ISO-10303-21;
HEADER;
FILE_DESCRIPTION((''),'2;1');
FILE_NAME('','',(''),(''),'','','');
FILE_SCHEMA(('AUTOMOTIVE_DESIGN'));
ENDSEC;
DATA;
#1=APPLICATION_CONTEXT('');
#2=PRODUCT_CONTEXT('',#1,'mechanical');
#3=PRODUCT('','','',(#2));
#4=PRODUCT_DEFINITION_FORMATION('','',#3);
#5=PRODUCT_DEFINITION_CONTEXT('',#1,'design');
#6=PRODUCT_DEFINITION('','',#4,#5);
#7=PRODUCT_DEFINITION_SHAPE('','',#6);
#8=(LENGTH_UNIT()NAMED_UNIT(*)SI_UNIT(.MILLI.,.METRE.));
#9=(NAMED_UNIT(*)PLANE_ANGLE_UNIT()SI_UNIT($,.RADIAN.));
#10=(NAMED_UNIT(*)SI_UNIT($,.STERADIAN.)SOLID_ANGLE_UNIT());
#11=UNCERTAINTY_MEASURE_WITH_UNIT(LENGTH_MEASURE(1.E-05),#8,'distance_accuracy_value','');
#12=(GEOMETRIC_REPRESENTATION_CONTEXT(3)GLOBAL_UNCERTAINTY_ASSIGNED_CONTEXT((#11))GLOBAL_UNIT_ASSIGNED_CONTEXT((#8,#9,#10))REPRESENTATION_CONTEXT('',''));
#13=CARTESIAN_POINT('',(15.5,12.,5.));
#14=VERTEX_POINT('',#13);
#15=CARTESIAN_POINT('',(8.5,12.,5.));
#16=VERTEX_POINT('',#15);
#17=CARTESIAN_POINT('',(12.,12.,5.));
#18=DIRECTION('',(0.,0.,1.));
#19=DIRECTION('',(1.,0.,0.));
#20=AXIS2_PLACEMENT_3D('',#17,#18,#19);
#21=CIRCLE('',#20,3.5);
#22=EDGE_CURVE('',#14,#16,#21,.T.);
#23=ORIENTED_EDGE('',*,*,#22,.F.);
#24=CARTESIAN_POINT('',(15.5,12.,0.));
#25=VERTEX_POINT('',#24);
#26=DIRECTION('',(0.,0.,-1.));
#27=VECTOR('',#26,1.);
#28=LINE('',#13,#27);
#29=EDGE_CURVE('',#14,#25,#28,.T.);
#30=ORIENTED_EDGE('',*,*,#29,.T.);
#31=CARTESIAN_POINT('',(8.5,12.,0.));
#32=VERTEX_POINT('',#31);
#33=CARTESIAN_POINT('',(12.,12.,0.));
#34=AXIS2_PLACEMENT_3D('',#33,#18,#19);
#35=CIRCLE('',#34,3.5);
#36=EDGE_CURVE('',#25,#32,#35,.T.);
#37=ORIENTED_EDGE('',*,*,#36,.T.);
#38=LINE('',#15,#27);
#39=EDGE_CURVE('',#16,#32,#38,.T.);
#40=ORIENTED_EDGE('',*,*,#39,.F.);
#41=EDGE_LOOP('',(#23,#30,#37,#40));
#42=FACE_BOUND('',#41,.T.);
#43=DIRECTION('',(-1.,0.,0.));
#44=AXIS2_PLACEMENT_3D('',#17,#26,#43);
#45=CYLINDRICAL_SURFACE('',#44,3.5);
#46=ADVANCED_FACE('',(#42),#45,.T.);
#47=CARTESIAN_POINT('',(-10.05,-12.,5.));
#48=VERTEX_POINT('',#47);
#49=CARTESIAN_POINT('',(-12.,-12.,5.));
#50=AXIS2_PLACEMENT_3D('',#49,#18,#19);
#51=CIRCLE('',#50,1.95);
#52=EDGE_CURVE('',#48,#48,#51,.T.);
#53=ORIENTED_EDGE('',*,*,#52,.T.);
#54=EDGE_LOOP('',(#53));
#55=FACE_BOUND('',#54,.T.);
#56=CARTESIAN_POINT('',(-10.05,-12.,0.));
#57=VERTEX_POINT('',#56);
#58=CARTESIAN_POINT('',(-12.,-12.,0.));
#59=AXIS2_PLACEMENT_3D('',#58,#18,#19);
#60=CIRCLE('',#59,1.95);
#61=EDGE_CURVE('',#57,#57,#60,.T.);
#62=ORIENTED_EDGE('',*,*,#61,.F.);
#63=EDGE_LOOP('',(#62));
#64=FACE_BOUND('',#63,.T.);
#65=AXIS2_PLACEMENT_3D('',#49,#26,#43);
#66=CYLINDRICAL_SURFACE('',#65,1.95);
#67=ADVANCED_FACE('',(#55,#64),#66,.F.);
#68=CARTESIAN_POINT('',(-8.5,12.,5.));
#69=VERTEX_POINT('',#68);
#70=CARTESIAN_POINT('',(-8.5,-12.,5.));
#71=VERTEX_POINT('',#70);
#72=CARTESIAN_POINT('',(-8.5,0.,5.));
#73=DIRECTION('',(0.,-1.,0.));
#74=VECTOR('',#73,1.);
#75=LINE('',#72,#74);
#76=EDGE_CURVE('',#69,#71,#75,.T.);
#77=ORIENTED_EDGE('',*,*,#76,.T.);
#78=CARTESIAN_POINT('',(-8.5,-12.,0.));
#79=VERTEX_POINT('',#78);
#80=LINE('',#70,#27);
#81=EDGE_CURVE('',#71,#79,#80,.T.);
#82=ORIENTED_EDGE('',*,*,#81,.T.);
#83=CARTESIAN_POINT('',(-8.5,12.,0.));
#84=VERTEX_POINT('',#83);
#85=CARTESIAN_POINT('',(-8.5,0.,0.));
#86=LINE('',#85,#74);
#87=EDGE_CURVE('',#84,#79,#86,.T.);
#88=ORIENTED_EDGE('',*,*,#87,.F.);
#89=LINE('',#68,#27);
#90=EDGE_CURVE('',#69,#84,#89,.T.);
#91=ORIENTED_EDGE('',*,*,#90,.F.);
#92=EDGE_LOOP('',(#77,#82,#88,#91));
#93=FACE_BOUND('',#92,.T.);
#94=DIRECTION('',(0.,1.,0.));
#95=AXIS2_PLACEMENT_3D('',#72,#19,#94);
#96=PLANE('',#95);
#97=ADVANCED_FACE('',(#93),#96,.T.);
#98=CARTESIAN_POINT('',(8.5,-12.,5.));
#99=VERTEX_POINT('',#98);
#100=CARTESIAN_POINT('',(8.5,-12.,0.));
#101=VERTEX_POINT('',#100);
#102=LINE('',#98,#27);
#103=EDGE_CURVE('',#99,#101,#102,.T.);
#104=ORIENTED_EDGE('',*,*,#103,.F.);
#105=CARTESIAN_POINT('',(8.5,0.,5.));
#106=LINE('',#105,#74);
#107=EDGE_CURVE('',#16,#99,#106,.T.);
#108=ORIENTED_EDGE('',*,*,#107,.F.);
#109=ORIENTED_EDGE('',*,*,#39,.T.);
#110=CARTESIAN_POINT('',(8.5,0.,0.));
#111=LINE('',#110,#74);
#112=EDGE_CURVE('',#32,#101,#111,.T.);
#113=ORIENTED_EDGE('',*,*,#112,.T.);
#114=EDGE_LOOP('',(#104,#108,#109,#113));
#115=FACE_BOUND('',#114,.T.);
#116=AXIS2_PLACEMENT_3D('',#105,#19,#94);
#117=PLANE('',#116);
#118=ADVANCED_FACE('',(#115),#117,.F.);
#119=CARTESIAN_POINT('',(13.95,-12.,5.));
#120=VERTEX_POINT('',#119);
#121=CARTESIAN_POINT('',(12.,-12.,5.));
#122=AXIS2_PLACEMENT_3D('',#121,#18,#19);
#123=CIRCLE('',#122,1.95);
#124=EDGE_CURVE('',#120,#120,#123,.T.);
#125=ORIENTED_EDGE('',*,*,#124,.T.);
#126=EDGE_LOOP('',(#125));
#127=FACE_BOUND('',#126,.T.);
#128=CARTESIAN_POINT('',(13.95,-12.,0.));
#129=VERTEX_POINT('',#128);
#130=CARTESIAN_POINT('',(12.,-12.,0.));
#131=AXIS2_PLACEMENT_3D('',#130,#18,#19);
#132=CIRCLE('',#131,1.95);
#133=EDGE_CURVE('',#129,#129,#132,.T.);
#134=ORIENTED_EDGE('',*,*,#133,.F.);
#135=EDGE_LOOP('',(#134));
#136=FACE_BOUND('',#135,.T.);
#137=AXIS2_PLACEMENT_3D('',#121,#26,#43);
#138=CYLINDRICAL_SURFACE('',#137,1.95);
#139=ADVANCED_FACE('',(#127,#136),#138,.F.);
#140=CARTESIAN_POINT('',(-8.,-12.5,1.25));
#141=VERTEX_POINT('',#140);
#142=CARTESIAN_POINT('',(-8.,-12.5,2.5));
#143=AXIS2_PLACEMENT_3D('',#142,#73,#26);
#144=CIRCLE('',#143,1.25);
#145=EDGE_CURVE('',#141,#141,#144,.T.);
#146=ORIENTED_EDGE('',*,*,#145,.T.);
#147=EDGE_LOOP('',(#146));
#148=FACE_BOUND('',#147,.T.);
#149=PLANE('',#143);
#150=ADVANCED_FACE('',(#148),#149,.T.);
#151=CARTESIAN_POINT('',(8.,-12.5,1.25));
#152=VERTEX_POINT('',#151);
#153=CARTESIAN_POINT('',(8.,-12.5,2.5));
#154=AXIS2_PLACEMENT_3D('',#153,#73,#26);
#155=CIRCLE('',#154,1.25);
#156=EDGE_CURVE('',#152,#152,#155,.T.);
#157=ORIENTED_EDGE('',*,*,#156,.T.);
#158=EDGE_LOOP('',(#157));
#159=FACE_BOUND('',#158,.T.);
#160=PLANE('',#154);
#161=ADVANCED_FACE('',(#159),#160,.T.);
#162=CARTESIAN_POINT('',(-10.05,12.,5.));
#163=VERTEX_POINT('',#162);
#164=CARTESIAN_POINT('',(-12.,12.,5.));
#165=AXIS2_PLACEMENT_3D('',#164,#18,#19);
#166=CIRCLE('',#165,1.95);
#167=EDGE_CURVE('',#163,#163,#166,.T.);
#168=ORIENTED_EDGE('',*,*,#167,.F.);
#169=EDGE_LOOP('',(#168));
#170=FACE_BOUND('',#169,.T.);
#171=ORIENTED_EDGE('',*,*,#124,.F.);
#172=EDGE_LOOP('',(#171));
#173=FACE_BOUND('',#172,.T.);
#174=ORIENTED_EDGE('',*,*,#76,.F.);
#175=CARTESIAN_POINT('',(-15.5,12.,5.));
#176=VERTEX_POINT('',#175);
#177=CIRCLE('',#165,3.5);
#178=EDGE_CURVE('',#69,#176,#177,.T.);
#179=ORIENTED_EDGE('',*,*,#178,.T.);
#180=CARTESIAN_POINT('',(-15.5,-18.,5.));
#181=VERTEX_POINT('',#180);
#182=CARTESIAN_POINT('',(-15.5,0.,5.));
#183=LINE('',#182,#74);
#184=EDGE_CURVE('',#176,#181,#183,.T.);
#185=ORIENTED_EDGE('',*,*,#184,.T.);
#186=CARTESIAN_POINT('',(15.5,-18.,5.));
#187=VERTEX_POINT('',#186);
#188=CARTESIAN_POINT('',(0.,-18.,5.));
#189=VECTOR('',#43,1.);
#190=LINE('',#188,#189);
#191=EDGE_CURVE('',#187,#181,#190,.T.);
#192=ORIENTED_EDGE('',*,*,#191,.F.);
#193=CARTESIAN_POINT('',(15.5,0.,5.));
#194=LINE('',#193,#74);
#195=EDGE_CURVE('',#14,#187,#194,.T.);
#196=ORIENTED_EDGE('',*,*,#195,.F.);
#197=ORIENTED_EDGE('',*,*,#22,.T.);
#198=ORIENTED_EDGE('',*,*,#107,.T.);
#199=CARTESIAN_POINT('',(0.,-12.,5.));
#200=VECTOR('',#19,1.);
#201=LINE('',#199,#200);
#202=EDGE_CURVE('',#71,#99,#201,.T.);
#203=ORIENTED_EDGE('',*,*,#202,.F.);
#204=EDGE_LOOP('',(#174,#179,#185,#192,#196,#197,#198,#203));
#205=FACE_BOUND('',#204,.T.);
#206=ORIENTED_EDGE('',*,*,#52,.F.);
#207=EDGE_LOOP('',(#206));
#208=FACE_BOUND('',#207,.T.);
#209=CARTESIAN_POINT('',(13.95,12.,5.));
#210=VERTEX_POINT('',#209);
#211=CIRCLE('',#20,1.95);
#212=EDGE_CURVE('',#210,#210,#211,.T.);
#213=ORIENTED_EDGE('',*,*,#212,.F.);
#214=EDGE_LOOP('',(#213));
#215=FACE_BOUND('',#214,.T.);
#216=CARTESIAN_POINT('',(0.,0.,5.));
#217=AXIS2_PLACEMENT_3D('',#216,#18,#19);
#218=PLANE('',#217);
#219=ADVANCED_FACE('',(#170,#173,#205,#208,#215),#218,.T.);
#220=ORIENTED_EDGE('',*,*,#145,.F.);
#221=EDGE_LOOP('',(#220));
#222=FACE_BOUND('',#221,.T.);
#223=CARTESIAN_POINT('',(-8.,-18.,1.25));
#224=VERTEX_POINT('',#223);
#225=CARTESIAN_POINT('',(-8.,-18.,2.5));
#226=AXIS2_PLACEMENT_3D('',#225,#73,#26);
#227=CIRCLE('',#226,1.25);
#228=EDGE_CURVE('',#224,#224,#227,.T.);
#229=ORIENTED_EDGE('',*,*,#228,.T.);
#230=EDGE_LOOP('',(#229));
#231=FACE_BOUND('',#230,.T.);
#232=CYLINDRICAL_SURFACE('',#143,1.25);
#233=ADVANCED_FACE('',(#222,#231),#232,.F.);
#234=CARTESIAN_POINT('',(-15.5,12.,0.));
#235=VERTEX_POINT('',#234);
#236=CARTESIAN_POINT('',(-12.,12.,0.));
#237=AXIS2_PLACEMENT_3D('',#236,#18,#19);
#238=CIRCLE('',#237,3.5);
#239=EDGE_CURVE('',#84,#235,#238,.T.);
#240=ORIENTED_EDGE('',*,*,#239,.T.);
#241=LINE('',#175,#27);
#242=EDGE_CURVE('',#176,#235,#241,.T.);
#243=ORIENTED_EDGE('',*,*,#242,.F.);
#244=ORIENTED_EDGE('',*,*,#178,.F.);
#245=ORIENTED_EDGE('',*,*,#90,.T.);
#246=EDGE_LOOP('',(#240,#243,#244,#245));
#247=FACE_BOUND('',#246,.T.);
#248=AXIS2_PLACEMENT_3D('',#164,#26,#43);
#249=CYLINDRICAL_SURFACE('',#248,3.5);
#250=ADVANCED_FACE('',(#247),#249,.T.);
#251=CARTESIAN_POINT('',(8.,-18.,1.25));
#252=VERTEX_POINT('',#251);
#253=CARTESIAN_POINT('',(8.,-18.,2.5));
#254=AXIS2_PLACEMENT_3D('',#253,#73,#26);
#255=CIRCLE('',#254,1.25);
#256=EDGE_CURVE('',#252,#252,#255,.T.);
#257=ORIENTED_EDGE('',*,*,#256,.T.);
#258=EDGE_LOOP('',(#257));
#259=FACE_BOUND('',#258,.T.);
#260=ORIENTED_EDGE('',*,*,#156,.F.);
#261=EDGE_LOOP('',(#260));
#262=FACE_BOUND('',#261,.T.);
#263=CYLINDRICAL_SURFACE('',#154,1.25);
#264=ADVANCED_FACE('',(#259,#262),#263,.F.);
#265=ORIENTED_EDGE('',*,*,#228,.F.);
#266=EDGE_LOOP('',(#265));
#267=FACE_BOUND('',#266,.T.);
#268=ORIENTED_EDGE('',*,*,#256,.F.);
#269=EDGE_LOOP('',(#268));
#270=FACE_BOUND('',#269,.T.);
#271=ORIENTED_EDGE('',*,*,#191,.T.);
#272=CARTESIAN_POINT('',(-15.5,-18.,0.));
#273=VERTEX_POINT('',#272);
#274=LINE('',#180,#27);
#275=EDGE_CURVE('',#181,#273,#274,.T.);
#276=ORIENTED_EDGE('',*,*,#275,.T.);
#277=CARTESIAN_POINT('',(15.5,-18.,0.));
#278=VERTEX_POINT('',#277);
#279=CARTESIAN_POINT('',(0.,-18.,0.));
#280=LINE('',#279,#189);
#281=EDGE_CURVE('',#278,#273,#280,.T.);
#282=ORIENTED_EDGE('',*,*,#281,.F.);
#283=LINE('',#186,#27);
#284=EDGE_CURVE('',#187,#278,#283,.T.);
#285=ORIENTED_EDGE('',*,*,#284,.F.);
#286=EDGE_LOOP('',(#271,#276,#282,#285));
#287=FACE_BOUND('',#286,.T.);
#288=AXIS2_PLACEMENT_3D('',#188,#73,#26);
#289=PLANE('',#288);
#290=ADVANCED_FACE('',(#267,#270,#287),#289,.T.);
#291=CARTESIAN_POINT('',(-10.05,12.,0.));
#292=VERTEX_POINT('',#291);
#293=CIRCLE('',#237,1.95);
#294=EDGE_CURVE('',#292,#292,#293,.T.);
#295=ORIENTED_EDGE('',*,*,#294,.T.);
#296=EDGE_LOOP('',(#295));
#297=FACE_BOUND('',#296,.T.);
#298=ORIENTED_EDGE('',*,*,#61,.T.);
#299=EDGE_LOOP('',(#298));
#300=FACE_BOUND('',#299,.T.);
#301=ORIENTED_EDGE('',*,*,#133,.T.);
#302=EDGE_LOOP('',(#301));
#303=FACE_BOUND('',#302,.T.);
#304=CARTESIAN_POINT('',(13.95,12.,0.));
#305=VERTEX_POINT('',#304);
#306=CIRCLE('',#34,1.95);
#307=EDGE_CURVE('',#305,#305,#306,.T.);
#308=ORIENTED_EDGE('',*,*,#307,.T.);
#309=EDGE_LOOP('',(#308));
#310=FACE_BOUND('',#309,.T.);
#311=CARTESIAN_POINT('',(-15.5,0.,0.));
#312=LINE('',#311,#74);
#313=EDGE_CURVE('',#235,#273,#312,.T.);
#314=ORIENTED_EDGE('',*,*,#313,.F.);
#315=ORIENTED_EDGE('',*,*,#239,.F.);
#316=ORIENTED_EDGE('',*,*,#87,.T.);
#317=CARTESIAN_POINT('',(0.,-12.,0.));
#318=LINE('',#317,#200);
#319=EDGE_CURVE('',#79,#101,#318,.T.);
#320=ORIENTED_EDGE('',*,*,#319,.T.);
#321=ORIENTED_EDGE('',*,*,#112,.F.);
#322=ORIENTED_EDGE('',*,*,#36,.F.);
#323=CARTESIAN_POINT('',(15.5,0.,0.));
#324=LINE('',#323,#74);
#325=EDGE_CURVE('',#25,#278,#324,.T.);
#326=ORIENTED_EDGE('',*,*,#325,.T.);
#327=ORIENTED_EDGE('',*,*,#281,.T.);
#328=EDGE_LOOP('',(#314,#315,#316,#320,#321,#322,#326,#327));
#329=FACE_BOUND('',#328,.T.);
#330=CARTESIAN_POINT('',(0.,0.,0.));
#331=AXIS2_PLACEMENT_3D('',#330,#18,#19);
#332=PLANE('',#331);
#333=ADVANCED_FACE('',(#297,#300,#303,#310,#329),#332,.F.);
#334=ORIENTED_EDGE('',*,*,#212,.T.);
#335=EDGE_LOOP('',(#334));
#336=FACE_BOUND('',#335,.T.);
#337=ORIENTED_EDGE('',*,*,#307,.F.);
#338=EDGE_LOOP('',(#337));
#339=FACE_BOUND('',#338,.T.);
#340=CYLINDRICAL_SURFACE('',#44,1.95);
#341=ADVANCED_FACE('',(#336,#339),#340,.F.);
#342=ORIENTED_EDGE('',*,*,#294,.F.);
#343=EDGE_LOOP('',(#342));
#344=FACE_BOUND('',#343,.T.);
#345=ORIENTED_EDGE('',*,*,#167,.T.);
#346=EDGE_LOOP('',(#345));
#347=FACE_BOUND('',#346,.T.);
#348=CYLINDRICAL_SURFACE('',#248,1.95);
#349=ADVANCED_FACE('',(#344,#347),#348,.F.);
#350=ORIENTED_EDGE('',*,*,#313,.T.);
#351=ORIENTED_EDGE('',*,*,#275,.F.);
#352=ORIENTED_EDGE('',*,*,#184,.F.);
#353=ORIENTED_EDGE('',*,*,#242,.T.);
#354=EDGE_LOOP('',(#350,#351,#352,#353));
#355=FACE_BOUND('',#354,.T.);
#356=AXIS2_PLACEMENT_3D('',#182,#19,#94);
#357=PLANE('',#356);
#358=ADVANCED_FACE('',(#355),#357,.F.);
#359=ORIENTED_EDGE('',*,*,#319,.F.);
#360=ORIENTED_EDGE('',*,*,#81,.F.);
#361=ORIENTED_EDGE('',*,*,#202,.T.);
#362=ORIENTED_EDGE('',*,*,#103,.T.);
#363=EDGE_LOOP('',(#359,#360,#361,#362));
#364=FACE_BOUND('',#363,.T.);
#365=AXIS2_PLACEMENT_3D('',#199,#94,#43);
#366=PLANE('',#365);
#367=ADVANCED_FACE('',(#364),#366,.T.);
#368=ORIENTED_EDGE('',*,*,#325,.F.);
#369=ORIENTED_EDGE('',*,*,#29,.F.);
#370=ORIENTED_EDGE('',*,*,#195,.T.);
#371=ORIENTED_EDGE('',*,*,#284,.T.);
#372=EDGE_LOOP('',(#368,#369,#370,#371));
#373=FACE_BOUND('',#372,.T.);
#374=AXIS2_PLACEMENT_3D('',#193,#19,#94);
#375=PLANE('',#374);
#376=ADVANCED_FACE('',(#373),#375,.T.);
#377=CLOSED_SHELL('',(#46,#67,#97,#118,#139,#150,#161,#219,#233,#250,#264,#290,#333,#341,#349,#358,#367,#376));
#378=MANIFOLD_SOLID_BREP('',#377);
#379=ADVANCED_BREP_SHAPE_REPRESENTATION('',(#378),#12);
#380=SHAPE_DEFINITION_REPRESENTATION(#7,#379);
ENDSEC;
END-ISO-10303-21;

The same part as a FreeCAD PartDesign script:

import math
import FreeCAD as App
import Part
import Sketcher

V = App.Vector
Q = App.Units.Quantity

doc = App.newDocument("Part")
body = doc.addObject("PartDesign::Body", "Body")

sketch1 = doc.addObject("Sketcher::SketchObject", "Sketch")
body.addObject(sketch1)
sketch1.AttachmentSupport = (doc.XY_Plane, [""])
sketch1.MapMode = "FlatFace"
sketch1.addGeometry(Part.ArcOfCircle(Part.Circle(V(-12, 12, 0), V(0, 0, 1), 3.5), math.radians(0), math.radians(180)), False)
sketch1.addGeometry(Part.LineSegment(V(-15.5, 12, 0), V(-15.5, -18, 0)), False)
sketch1.addGeometry(Part.LineSegment(V(-15.5, -18, 0), V(15.5, -18, 0)), False)
sketch1.addGeometry(Part.LineSegment(V(15.5, -18, 0), V(15.5, 12, 0)), False)
sketch1.addGeometry(Part.ArcOfCircle(Part.Circle(V(12, 12, 0), V(0, 0, 1), 3.5), math.radians(0), math.radians(180)), False)
sketch1.addGeometry(Part.LineSegment(V(8.5, 12, 0), V(8.5, -12, 0)), False)
sketch1.addGeometry(Part.LineSegment(V(8.5, -12, 0), V(-8.5, -12, 0)), False)
sketch1.addGeometry(Part.LineSegment(V(-8.5, -12, 0), V(-8.5, 12, 0)), False)
sketch1.addGeometry(Part.Circle(V(-12, -12, 0), V(0, 0, 1), 1.9), False)
sketch1.addGeometry(Part.Circle(V(12, -12, 0), V(0, 0, 1), 1.9), False)
sketch1.addGeometry(Part.Circle(V(-12, 12, 0), V(0, 0, 1), 1.9), False)
sketch1.addGeometry(Part.Circle(V(12, 12, 0), V(0, 0, 1), 1.9), False)
sketch1.addConstraint(Sketcher.Constraint("Tangent", 0, 2, 1, 1))
sketch1.addConstraint(Sketcher.Constraint("Coincident", 1, 2, 2, 1))
sketch1.addConstraint(Sketcher.Constraint("Coincident", 2, 2, 3, 1))
sketch1.addConstraint(Sketcher.Constraint("Tangent", 3, 2, 4, 1))
sketch1.addConstraint(Sketcher.Constraint("Tangent", 4, 2, 5, 1))
sketch1.addConstraint(Sketcher.Constraint("Coincident", 5, 2, 6, 1))
sketch1.addConstraint(Sketcher.Constraint("Coincident", 6, 2, 7, 1))
sketch1.addConstraint(Sketcher.Constraint("Tangent", 7, 2, 0, 1))
sketch1.addConstraint(Sketcher.Constraint("Vertical", 1))
sketch1.addConstraint(Sketcher.Constraint("Horizontal", 2))
sketch1.addConstraint(Sketcher.Constraint("Vertical", 3))
sketch1.addConstraint(Sketcher.Constraint("Vertical", 5))
sketch1.addConstraint(Sketcher.Constraint("Horizontal", 6))
sketch1.addConstraint(Sketcher.Constraint("Vertical", 7))
sketch1.addConstraint(Sketcher.Constraint("Coincident", 10, 3, 0, 3))
sketch1.addConstraint(Sketcher.Constraint("Coincident", 11, 3, 4, 3))
sketch1.addConstraint(Sketcher.Constraint("Equal", 0, 4))
sketch1.addConstraint(Sketcher.Constraint("Equal", 8, 9))
sketch1.addConstraint(Sketcher.Constraint("Equal", 9, 10))
sketch1.addConstraint(Sketcher.Constraint("Equal", 10, 11))
sketch1.addConstraint(Sketcher.Constraint("Symmetric", 4, 3, 8, 3, -1, 1))
sketch1.addConstraint(Sketcher.Constraint("Symmetric", 0, 3, 9, 3, -1, 1))
sketch1.addConstraint(Sketcher.Constraint("Symmetric", 4, 2, 6, 2, -1, 1))
sketch1.addConstraint(Sketcher.Constraint("Horizontal", 0, 3, 4, 3))
sketch1.addConstraint(Sketcher.Constraint("Diameter", 8, Q("3.9 mm")))
sketch1.addConstraint(Sketcher.Constraint("Radius", 0, Q("3.5 mm")))
sketch1.addConstraint(Sketcher.Constraint("DistanceX", 2, 1, 2, 2, Q("31 mm")))
sketch1.addConstraint(Sketcher.Constraint("DistanceY", 1, 2, 1, 1, Q("30 mm")))
sketch1.addConstraint(Sketcher.Constraint("DistanceY", 5, 2, 5, 1, Q("24 mm")))
pad1 = doc.addObject("PartDesign::Pad", "Pad")
body.addObject(pad1)
pad1.Profile = sketch1
pad1.Length = 5

sketch2 = doc.addObject("Sketcher::SketchObject", "Sketch001")
body.addObject(sketch2)
sketch2.AttachmentSupport = (doc.XZ_Plane, [""])
sketch2.MapMode = "FlatFace"
sketch2.AttachmentOffset = App.Placement(V(0, 0, 18), App.Rotation())
sketch2.addGeometry(Part.Circle(V(-8, 2.5, 0), V(0, 0, 1), 1.2), False)
sketch2.addGeometry(Part.Circle(V(8, 2.5, 0), V(0, 0, 1), 1.2), False)
sketch2.addConstraint(Sketcher.Constraint("Equal", 0, 1))
sketch2.addConstraint(Sketcher.Constraint("Symmetric", 0, 3, 1, 3, -2))
sketch2.addConstraint(Sketcher.Constraint("Diameter", 0, Q("2.5 mm")))
sketch2.addConstraint(Sketcher.Constraint("DistanceX", 0, 3, -1, 1, Q("8 mm")))
sketch2.addConstraint(Sketcher.Constraint("DistanceY", -1, 1, 0, 3, Q("2.5 mm")))
pocket1 = doc.addObject("PartDesign::Pocket", "Pocket")
body.addObject(pocket1)
pocket1.Profile = sketch2
pocket1.Length = 5.5

doc.recompute()
